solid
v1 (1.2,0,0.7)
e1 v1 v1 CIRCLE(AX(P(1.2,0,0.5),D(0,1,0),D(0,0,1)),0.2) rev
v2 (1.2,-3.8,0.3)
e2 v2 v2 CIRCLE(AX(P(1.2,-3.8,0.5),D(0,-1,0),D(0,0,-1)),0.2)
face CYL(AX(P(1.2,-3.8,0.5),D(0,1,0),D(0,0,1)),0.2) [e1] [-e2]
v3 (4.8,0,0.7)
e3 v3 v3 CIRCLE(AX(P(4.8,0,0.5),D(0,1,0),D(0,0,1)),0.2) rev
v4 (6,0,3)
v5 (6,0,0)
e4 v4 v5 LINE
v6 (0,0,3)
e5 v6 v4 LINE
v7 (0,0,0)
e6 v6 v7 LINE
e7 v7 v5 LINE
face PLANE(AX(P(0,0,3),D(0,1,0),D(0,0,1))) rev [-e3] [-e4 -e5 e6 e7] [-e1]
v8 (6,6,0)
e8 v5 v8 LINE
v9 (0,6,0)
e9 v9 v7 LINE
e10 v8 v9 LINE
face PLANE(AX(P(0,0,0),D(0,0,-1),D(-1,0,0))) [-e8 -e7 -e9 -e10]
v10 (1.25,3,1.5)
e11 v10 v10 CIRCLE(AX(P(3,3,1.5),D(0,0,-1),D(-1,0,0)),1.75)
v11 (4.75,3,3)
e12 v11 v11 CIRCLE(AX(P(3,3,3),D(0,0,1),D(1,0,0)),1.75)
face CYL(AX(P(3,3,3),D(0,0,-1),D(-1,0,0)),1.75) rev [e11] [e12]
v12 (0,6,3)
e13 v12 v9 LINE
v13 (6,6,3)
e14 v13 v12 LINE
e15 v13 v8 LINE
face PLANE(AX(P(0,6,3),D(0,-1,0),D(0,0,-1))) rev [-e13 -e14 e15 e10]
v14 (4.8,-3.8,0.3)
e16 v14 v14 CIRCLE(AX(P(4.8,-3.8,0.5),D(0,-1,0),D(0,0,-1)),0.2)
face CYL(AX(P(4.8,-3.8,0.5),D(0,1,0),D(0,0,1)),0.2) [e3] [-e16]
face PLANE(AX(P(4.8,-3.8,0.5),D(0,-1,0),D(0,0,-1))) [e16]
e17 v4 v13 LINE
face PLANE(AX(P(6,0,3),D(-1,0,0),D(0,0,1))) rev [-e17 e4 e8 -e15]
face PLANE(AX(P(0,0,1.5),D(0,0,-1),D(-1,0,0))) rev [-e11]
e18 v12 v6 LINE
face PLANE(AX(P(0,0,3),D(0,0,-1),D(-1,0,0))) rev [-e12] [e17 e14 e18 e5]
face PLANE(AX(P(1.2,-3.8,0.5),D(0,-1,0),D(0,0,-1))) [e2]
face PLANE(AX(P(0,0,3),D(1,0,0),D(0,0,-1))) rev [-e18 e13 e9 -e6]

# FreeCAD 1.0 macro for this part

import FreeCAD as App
import Part
import Sketcher
from FreeCAD import Vector
Q = App.Units.Quantity


def add_polygon(sketch, points):
    """Adds a closed chain of lines whose ends are joined by coincident constraints."""
    first, n = sketch.GeometryCount, len(points)
    for a, b in zip(points, points[1:] + points[:1]):
        sketch.addGeometry(Part.LineSegment(App.Vector(*a, 0), App.Vector(*b, 0)), False)
    for i in range(n):
        sketch.addConstraint(Sketcher.Constraint("Coincident", first + i, 2, first + (i + 1) % n, 1))

doc = App.newDocument("Part")
body = doc.addObject("PartDesign::Body", "Body")

# Sketch on XY plane
sketch1 = body.newObject("Sketcher::SketchObject", "Sketch")
sketch1.AttachmentSupport = (doc.getObject("XY_Plane"), [""])
sketch1.MapMode = "FlatFace"
add_polygon(sketch1, [(0, 6), (0, 0), (6, 0), (6, 6)])  # lines 0-3
sketch1.addGeometry(Part.Circle(Vector(3, 3, 0), Vector(0, 0, 1), 1.8), False)  # 4
sketch1.addConstraint([
    Sketcher.Constraint("Vertical", 0),
    Sketcher.Constraint("Horizontal", 1),
    Sketcher.Constraint("Vertical", 2),
    Sketcher.Constraint("Horizontal", 3),
    Sketcher.Constraint("Coincident", 0, 2, -1, 1),
    Sketcher.Constraint("Equal", 3, 0),
    Sketcher.Constraint("Diameter", 4, Q("3.5 mm")),
    Sketcher.Constraint("DistanceX", 1, 1, 1, 2, Q("6 mm")),
    Sketcher.Constraint("DistanceX", -1, 1, 4, 3, Q("3 mm")),
    Sketcher.Constraint("DistanceY", -1, 1, 4, 3, Q("3 mm")),
])
pad1 = body.newObject("PartDesign::Pad", "Pad")
pad1.Profile = sketch1
pad1.Length = 3

# Sketch on XY plane
sketch2 = body.newObject("Sketcher::SketchObject", "Sketch001")
sketch2.AttachmentSupport = (doc.getObject("XY_Plane"), [""])
sketch2.MapMode = "FlatFace"
add_polygon(sketch2, [(0, 6), (0, 0), (6, 0), (6, 6)])  # lines 0-3
sketch2.addConstraint([
    Sketcher.Constraint("Vertical", 0),
    Sketcher.Constraint("Horizontal", 1),
    Sketcher.Constraint("Vertical", 2),
    Sketcher.Constraint("Horizontal", 3),
    Sketcher.Constraint("Coincident", 0, 2, -1, 1),
    Sketcher.Constraint("Equal", 3, 0),
    Sketcher.Constraint("DistanceX", 1, 1, 1, 2, Q("6 mm")),
])
pad2 = body.newObject("PartDesign::Pad", "Pad001")
pad2.Profile = sketch2
pad2.Length = 1.5

# Sketch on XZ plane
sketch3 = body.newObject("Sketcher::SketchObject", "Sketch002")
sketch3.AttachmentSupport = (doc.getObject("XZ_Plane"), [""])
sketch3.MapMode = "FlatFace"
sketch3.addGeometry([
    Part.Circle(Vector(1.2, 0.5, 0), Vector(0, 0, 1), 0.2),
    Part.Circle(Vector(4.8, 0.5, 0), Vector(0, 0, 1), 0.2),
], False)
sketch3.addConstraint([
    Sketcher.Constraint("Equal", 0, 1),
    Sketcher.Constraint("Horizontal", 0, 3, 1, 3),
    Sketcher.Constraint("Diameter", 0, Q("0.4 mm")),
    Sketcher.Constraint("DistanceX", -1, 1, 0, 3, Q("1.2 mm")),
    Sketcher.Constraint("DistanceY", -1, 1, 0, 3, Q("0.5 mm")),
    Sketcher.Constraint("DistanceX", -1, 1, 1, 3, Q("4.8 mm")),
])
pad3 = body.newObject("PartDesign::Pad", "Pad002")
pad3.Profile = sketch3
pad3.Length = 3.8

doc.recompute()
